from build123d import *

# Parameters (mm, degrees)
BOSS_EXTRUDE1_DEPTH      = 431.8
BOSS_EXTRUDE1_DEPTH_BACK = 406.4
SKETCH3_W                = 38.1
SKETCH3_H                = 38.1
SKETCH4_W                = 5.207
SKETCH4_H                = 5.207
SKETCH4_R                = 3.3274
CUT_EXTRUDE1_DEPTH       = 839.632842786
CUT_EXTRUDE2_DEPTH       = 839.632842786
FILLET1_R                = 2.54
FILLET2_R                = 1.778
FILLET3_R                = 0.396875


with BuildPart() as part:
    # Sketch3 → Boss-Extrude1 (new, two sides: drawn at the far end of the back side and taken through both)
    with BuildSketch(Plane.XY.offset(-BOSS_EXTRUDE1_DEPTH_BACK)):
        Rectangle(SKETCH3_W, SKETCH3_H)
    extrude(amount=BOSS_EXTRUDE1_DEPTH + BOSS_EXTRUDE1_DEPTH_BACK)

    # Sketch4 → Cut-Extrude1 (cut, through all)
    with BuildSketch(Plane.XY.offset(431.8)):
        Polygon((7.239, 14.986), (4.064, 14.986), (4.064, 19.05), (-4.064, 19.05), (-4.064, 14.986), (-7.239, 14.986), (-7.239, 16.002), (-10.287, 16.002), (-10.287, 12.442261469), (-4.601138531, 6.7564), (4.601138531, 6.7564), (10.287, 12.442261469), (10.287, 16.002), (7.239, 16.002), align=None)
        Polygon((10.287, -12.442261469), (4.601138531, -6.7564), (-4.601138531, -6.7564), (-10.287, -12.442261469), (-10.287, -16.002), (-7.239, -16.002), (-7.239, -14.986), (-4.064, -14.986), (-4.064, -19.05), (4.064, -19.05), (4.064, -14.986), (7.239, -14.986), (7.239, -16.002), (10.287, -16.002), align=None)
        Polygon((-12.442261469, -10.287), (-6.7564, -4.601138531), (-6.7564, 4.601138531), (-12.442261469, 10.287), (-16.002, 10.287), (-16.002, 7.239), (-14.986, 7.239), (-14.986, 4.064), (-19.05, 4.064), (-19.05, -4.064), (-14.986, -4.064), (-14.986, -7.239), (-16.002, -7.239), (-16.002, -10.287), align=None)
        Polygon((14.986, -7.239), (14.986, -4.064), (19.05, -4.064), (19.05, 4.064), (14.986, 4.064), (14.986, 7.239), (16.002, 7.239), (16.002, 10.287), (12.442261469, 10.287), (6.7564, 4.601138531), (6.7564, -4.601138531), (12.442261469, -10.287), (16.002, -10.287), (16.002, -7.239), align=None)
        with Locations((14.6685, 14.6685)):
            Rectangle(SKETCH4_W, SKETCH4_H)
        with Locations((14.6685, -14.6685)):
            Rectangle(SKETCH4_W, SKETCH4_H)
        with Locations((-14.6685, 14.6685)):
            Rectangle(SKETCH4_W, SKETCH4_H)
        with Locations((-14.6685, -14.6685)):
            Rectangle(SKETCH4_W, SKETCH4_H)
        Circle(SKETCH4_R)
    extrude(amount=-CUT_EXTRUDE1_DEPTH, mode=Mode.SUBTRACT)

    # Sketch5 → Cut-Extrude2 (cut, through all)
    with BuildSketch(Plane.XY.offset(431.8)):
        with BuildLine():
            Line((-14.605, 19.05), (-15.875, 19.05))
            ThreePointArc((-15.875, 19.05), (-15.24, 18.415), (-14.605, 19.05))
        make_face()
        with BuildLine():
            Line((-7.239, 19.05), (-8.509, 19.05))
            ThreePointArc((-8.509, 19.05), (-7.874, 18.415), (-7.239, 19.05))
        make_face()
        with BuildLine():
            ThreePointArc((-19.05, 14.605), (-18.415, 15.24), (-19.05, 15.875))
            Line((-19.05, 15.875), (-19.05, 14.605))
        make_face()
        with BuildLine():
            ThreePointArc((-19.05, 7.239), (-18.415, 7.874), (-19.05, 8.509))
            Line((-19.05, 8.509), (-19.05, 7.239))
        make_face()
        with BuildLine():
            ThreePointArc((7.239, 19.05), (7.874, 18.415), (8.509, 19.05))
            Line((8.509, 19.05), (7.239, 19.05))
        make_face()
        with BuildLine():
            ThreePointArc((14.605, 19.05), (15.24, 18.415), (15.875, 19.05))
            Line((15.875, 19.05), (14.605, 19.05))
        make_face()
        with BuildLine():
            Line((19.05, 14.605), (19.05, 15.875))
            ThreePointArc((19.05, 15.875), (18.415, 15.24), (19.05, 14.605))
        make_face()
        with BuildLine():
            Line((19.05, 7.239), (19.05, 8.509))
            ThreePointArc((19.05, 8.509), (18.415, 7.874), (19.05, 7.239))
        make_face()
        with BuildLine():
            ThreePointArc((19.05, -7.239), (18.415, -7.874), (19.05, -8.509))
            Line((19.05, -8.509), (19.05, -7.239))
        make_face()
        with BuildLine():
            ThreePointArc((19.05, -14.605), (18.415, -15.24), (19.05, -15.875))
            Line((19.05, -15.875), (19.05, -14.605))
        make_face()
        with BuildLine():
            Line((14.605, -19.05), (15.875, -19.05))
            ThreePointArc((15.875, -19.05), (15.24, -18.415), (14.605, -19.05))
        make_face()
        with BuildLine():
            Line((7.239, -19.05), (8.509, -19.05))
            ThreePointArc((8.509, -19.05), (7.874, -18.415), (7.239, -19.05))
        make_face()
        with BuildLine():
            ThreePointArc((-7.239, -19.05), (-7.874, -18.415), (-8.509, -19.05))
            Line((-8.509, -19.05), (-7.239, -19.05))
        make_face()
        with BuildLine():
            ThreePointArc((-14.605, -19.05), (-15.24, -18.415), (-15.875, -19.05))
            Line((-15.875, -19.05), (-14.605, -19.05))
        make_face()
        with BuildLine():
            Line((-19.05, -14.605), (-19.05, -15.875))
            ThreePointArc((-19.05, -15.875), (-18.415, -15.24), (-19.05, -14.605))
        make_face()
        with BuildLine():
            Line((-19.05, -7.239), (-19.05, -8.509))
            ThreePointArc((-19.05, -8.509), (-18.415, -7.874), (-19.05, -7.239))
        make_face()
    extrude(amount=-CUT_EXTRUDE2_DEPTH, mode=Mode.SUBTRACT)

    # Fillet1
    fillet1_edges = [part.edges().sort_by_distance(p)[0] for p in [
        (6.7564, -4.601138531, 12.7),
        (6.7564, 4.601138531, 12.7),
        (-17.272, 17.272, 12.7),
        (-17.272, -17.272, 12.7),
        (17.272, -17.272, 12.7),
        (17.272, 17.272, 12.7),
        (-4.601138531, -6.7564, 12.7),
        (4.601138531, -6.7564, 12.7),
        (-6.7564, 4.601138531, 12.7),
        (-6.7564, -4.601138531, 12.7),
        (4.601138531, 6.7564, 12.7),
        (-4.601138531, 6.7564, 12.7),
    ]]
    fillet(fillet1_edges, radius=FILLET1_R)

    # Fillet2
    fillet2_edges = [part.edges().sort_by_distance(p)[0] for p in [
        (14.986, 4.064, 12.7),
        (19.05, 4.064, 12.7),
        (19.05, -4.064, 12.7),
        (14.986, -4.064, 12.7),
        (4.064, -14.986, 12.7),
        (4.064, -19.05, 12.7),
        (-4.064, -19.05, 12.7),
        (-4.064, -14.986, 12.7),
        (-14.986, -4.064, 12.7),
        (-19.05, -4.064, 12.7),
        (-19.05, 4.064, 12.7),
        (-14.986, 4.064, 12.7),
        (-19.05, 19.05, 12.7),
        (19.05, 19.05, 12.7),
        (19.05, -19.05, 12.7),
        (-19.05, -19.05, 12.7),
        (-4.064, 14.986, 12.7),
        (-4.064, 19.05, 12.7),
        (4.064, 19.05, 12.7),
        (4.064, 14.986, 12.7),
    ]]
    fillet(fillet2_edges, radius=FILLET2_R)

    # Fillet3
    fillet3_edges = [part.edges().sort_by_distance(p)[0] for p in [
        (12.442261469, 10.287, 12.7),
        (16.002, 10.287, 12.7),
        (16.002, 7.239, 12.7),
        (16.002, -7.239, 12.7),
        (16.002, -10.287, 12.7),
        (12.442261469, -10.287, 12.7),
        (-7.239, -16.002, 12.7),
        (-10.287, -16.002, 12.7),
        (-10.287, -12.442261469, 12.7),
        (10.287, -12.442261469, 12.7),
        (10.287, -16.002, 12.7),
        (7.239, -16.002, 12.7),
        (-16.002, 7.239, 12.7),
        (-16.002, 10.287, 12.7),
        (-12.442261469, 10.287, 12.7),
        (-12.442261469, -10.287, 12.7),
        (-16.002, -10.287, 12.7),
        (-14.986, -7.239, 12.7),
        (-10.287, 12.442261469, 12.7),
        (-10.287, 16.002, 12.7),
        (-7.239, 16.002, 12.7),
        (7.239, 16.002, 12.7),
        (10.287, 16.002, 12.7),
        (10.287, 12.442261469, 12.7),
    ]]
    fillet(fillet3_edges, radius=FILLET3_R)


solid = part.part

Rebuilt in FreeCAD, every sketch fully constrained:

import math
import FreeCAD as App
import Part
import Sketcher
Q = App.Units.Quantity


def edges_at(feature, points):
    """Names of the edges that pass closest to the given points."""
    edges = feature.Shape.Edges
    near = lambda p: min(range(len(edges)), key=lambda i: edges[i].distToShape(Part.Vertex(*p))[0])
    return sorted({f"Edge{near(p) + 1}" for p in points})

doc = App.newDocument("Part")
body = doc.addObject("PartDesign::Body", "Body")

# Sketch on XY plane
sketch1 = body.newObject("Sketcher::SketchObject", "Sketch")
sketch1.AttachmentSupport = (doc.getObject("XY_Plane"), [""])
sketch1.MapMode = "FlatFace"
sketch1.addGeometry([
    Part.LineSegment(App.Vector(-19, 19, 0), App.Vector(-19, -19, 0)),
    Part.LineSegment(App.Vector(-19, -19, 0), App.Vector(19, -19, 0)),
    Part.LineSegment(App.Vector(19, -19, 0), App.Vector(19, 19, 0)),
    Part.LineSegment(App.Vector(19, 19, 0), App.Vector(-19, 19, 0)),
], False)
sketch1.addConstraint([
    Sketcher.Constraint("Coincident", 0, 2, 1, 1),
    Sketcher.Constraint("Coincident", 1, 2, 2, 1),
    Sketcher.Constraint("Coincident", 2, 2, 3, 1),
    Sketcher.Constraint("Coincident", 3, 2, 0, 1),
    Sketcher.Constraint("Vertical", 0),
    Sketcher.Constraint("Horizontal", 1),
    Sketcher.Constraint("Vertical", 2),
    Sketcher.Constraint("Horizontal", 3),
    Sketcher.Constraint("Symmetric", 0, 2, 2, 2, -1, 1),
    Sketcher.Constraint("Equal", 3, 0),
    Sketcher.Constraint("DistanceX", 1, 1, 1, 2, Q("1.5 in")),
])
pad1 = body.newObject("PartDesign::Pad", "Pad")
pad1.Profile = sketch1
pad1.Type = "TwoLengths"
pad1.Length = Q("17 in")
pad1.Length2 = Q("16 in")

# Sketch on XY plane
sketch2 = body.newObject("Sketcher::SketchObject", "Sketch001")
sketch2.AttachmentSupport = (doc.getObject("XY_Plane"), [""])
sketch2.MapMode = "FlatFace"
sketch2.AttachmentOffset = App.Placement(App.Vector(0, 0, 17 * 25.4), App.Rotation())
sketch2.addGeometry([
    Part.LineSegment(App.Vector(7.2, 15, 0), App.Vector(4.1, 15, 0)),  # 0
    Part.LineSegment(App.Vector(4.1, 15, 0), App.Vector(4.1, 19.1, 0)),  # 1
    Part.LineSegment(App.Vector(4.1, 19.1, 0), App.Vector(-4.1, 19.1, 0)),  # 2
    Part.LineSegment(App.Vector(-4.1, 19.1, 0), App.Vector(-4.1, 15, 0)),  # 3
    Part.LineSegment(App.Vector(-4.1, 15, 0), App.Vector(-7.2, 15, 0)),  # 4
    Part.LineSegment(App.Vector(-7.2, 15, 0), App.Vector(-7.2, 16, 0)),  # 5
    Part.LineSegment(App.Vector(-7.2, 16, 0), App.Vector(-10.3, 16, 0)),  # 6
    Part.LineSegment(App.Vector(-10.3, 16, 0), App.Vector(-10.3, 12.4, 0)),  # 7
    Part.LineSegment(App.Vector(-10.3, 12.4, 0), App.Vector(-4.6, 6.8, 0)),  # 8
    Part.LineSegment(App.Vector(-4.6, 6.8, 0), App.Vector(4.6, 6.8, 0)),  # 9
    Part.LineSegment(App.Vector(4.6, 6.8, 0), App.Vector(10.3, 12.4, 0)),  # 10
    Part.LineSegment(App.Vector(10.3, 12.4, 0), App.Vector(10.3, 16, 0)),  # 11
    Part.LineSegment(App.Vector(10.3, 16, 0), App.Vector(7.2, 16, 0)),  # 12
    Part.LineSegment(App.Vector(7.2, 16, 0), App.Vector(7.2, 15, 0)),  # 13
    Part.LineSegment(App.Vector(10.3, -12.4, 0), App.Vector(4.6, -6.8, 0)),  # 14
    Part.LineSegment(App.Vector(4.6, -6.8, 0), App.Vector(-4.6, -6.8, 0)),  # 15
    Part.LineSegment(App.Vector(-4.6, -6.8, 0), App.Vector(-10.3, -12.4, 0)),  # 16
    Part.LineSegment(App.Vector(-10.3, -12.4, 0), App.Vector(-10.3, -16, 0)),  # 17
    Part.LineSegment(App.Vector(-10.3, -16, 0), App.Vector(-7.2, -16, 0)),  # 18
    Part.LineSegment(App.Vector(-7.2, -16, 0), App.Vector(-7.2, -15, 0)),  # 19
    Part.LineSegment(App.Vector(-7.2, -15, 0), App.Vector(-4.1, -15, 0)),  # 20
    Part.LineSegment(App.Vector(-4.1, -15, 0), App.Vector(-4.1, -19.1, 0)),  # 21
    Part.LineSegment(App.Vector(-4.1, -19.1, 0), App.Vector(4.1, -19.1, 0)),  # 22
    Part.LineSegment(App.Vector(4.1, -19.1, 0), App.Vector(4.1, -15, 0)),  # 23
    Part.LineSegment(App.Vector(4.1, -15, 0), App.Vector(7.2, -15, 0)),  # 24
    Part.LineSegment(App.Vector(7.2, -15, 0), App.Vector(7.2, -16, 0)),  # 25
    Part.LineSegment(App.Vector(7.2, -16, 0), App.Vector(10.3, -16, 0)),  # 26
    Part.LineSegment(App.Vector(10.3, -16, 0), App.Vector(10.3, -12.4, 0)),  # 27
    Part.LineSegment(App.Vector(-12.4, -10.3, 0), App.Vector(-6.8, -4.6, 0)),  # 28
    Part.LineSegment(App.Vector(-6.8, -4.6, 0), App.Vector(-6.8, 4.6, 0)),  # 29
    Part.LineSegment(App.Vector(-6.8, 4.6, 0), App.Vector(-12.4, 10.3, 0)),  # 30
    Part.LineSegment(App.Vector(-12.4, 10.3, 0), App.Vector(-16, 10.3, 0)),  # 31
    Part.LineSegment(App.Vector(-16, 10.3, 0), App.Vector(-16, 7.2, 0)),  # 32
    Part.LineSegment(App.Vector(-16, 7.2, 0), App.Vector(-15, 7.2, 0)),  # 33
    Part.LineSegment(App.Vector(-15, 7.2, 0), App.Vector(-15, 4.1, 0)),  # 34
    Part.LineSegment(App.Vector(-15, 4.1, 0), App.Vector(-19.1, 4.1, 0)),  # 35
    Part.LineSegment(App.Vector(-19.1, 4.1, 0), App.Vector(-19.1, -4.1, 0)),  # 36
    Part.LineSegment(App.Vector(-19.1, -4.1, 0), App.Vector(-15, -4.1, 0)),  # 37
    Part.LineSegment(App.Vector(-15, -4.1, 0), App.Vector(-15, -7.2, 0)),  # 38
    Part.LineSegment(App.Vector(-15, -7.2, 0), App.Vector(-16, -7.2, 0)),  # 39
    Part.LineSegment(App.Vector(-16, -7.2, 0), App.Vector(-16, -10.3, 0)),  # 40
    Part.LineSegment(App.Vector(-16, -10.3, 0), App.Vector(-12.4, -10.3, 0)),  # 41
    Part.LineSegment(App.Vector(15, -7.2, 0), App.Vector(15, -4.1, 0)),  # 42
    Part.LineSegment(App.Vector(15, -4.1, 0), App.Vector(19.1, -4.1, 0)),  # 43
    Part.LineSegment(App.Vector(19.1, -4.1, 0), App.Vector(19.1, 4.1, 0)),  # 44
    Part.LineSegment(App.Vector(19.1, 4.1, 0), App.Vector(15, 4.1, 0)),  # 45
    Part.LineSegment(App.Vector(15, 4.1, 0), App.Vector(15, 7.2, 0)),  # 46
    Part.LineSegment(App.Vector(15, 7.2, 0), App.Vector(16, 7.2, 0)),  # 47
    Part.LineSegment(App.Vector(16, 7.2, 0), App.Vector(16, 10.3, 0)),  # 48
    Part.LineSegment(App.Vector(16, 10.3, 0), App.Vector(12.4, 10.3, 0)),  # 49
    Part.LineSegment(App.Vector(12.4, 10.3, 0), App.Vector(6.8, 4.6, 0)),  # 50
    Part.LineSegment(App.Vector(6.8, 4.6, 0), App.Vector(6.8, -4.6, 0)),  # 51
    Part.LineSegment(App.Vector(6.8, -4.6, 0), App.Vector(12.4, -10.3, 0)),  # 52
    Part.LineSegment(App.Vector(12.4, -10.3, 0), App.Vector(16, -10.3, 0)),  # 53
    Part.LineSegment(App.Vector(16, -10.3, 0), App.Vector(16, -7.2, 0)),  # 54
    Part.LineSegment(App.Vector(16, -7.2, 0), App.Vector(15, -7.2, 0)),  # 55
    Part.LineSegment(App.Vector(12.1, 17.3, 0), App.Vector(12.1, 12.1, 0)),  # 56
    Part.LineSegment(App.Vector(12.1, 12.1, 0), App.Vector(17.3, 12.1, 0)),  # 57
    Part.LineSegment(App.Vector(17.3, 12.1, 0), App.Vector(17.3, 17.3, 0)),  # 58
    Part.LineSegment(App.Vector(17.3, 17.3, 0), App.Vector(12.1, 17.3, 0)),  # 59
    Part.LineSegment(App.Vector(12.1, -12.1, 0), App.Vector(12.1, -17.3, 0)),  # 60
    Part.LineSegment(App.Vector(12.1, -17.3, 0), App.Vector(17.3, -17.3, 0)),  # 61
    Part.LineSegment(App.Vector(17.3, -17.3, 0), App.Vector(17.3, -12.1, 0)),  # 62
    Part.LineSegment(App.Vector(17.3, -12.1, 0), App.Vector(12.1, -12.1, 0)),  # 63
    Part.LineSegment(App.Vector(-17.3, 17.3, 0), App.Vector(-17.3, 12.1, 0)),  # 64
    Part.LineSegment(App.Vector(-17.3, 12.1, 0), App.Vector(-12.1, 12.1, 0)),  # 65
    Part.LineSegment(App.Vector(-12.1, 12.1, 0), App.Vector(-12.1, 17.3, 0)),  # 66
    Part.LineSegment(App.Vector(-12.1, 17.3, 0), App.Vector(-17.3, 17.3, 0)),  # 67
    Part.LineSegment(App.Vector(-17.3, -12.1, 0), App.Vector(-17.3, -17.3, 0)),  # 68
    Part.LineSegment(App.Vector(-17.3, -17.3, 0), App.Vector(-12.1, -17.3, 0)),  # 69
    Part.LineSegment(App.Vector(-12.1, -17.3, 0), App.Vector(-12.1, -12.1, 0)),  # 70
    Part.LineSegment(App.Vector(-12.1, -12.1, 0), App.Vector(-17.3, -12.1, 0)),  # 71
    Part.Circle(App.Vector(0, 0, 0), App.Vector(0, 0, 1), 3.3),  # 72
], False)
sketch2.addConstraint([
    Sketcher.Constraint("Coincident", 0, 2, 1, 1),
    Sketcher.Constraint("Coincident", 1, 2, 2, 1),
    Sketcher.Constraint("Coincident", 2, 2, 3, 1),
    Sketcher.Constraint("Coincident", 3, 2, 4, 1),
    Sketcher.Constraint("Coincident", 4, 2, 5, 1),
    Sketcher.Constraint("Coincident", 5, 2, 6, 1),
    Sketcher.Constraint("Coincident", 6, 2, 7, 1),
    Sketcher.Constraint("Coincident", 7, 2, 8, 1),
    Sketcher.Constraint("Coincident", 8, 2, 9, 1),
    Sketcher.Constraint("Coincident", 9, 2, 10, 1),
    Sketcher.Constraint("Coincident", 10, 2, 11, 1),
    Sketcher.Constraint("Coincident", 11, 2, 12, 1),
    Sketcher.Constraint("Coincident", 12, 2, 13, 1),
    Sketcher.Constraint("Coincident", 13, 2, 0, 1),
    Sketcher.Constraint("Coincident", 14, 2, 15, 1),
    Sketcher.Constraint("Coincident", 15, 2, 16, 1),
    Sketcher.Constraint("Coincident", 16, 2, 17, 1),
    Sketcher.Constraint("Coincident", 17, 2, 18, 1),
    Sketcher.Constraint("Coincident", 18, 2, 19, 1),
    Sketcher.Constraint("Coincident", 19, 2, 20, 1),
    Sketcher.Constraint("Coincident", 20, 2, 21, 1),
    Sketcher.Constraint("Coincident", 21, 2, 22, 1),
    Sketcher.Constraint("Coincident", 22, 2, 23, 1),
    Sketcher.Constraint("Coincident", 23, 2, 24, 1),
    Sketcher.Constraint("Coincident", 24, 2, 25, 1),
    Sketcher.Constraint("Coincident", 25, 2, 26, 1),
    Sketcher.Constraint("Coincident", 26, 2, 27, 1),
    Sketcher.Constraint("Coincident", 27, 2, 14, 1),
    Sketcher.Constraint("Coincident", 28, 2, 29, 1),
    Sketcher.Constraint("Coincident", 29, 2, 30, 1),
    Sketcher.Constraint("Coincident", 30, 2, 31, 1),
    Sketcher.Constraint("Coincident", 31, 2, 32, 1),
    Sketcher.Constraint("Coincident", 32, 2, 33, 1),
    Sketcher.Constraint("Coincident", 33, 2, 34, 1),
    Sketcher.Constraint("Coincident", 34, 2, 35, 1),
    Sketcher.Constraint("Coincident", 35, 2, 36, 1),
    Sketcher.Constraint("Coincident", 36, 2, 37, 1),
    Sketcher.Constraint("Coincident", 37, 2, 38, 1),
    Sketcher.Constraint("Coincident", 38, 2, 39, 1),
    Sketcher.Constraint("Coincident", 39, 2, 40, 1),
    Sketcher.Constraint("Coincident", 40, 2, 41, 1),
    Sketcher.Constraint("Coincident", 41, 2, 28, 1),
    Sketcher.Constraint("Coincident", 42, 2, 43, 1),
    Sketcher.Constraint("Coincident", 43, 2, 44, 1),
    Sketcher.Constraint("Coincident", 44, 2, 45, 1),
    Sketcher.Constraint("Coincident", 45, 2, 46, 1),
    Sketcher.Constraint("Coincident", 46, 2, 47, 1),
    Sketcher.Constraint("Coincident", 47, 2, 48, 1),
    Sketcher.Constraint("Coincident", 48, 2, 49, 1),
    Sketcher.Constraint("Coincident", 49, 2, 50, 1),
    Sketcher.Constraint("Coincident", 50, 2, 51, 1),
    Sketcher.Constraint("Coincident", 51, 2, 52, 1),
    Sketcher.Constraint("Coincident", 52, 2, 53, 1),
    Sketcher.Constraint("Coincident", 53, 2, 54, 1),
    Sketcher.Constraint("Coincident", 54, 2, 55, 1),
    Sketcher.Constraint("Coincident", 55, 2, 42, 1),
    Sketcher.Constraint("Coincident", 56, 2, 57, 1),
    Sketcher.Constraint("Coincident", 57, 2, 58, 1),
    Sketcher.Constraint("Coincident", 58, 2, 59, 1),
    Sketcher.Constraint("Coincident", 59, 2, 56, 1),
    Sketcher.Constraint("Coincident", 60, 2, 61, 1),
    Sketcher.Constraint("Coincident", 61, 2, 62, 1),
    Sketcher.Constraint("Coincident", 62, 2, 63, 1),
    Sketcher.Constraint("Coincident", 63, 2, 60, 1),
    Sketcher.Constraint("Coincident", 64, 2, 65, 1),
    Sketcher.Constraint("Coincident", 65, 2, 66, 1),
    Sketcher.Constraint("Coincident", 66, 2, 67, 1),
    Sketcher.Constraint("Coincident", 67, 2, 64, 1),
    Sketcher.Constraint("Coincident", 68, 2, 69, 1),
    Sketcher.Constraint("Coincident", 69, 2, 70, 1),
    Sketcher.Constraint("Coincident", 70, 2, 71, 1),
    Sketcher.Constraint("Coincident", 71, 2, 68, 1),
    Sketcher.Constraint("Horizontal", 0),
    Sketcher.Constraint("Vertical", 1),
    Sketcher.Constraint("Horizontal", 2),
    Sketcher.Constraint("Vertical", 3),
    Sketcher.Constraint("Horizontal", 4),
    Sketcher.Constraint("Vertical", 5),
    Sketcher.Constraint("Horizontal", 6),
    Sketcher.Constraint("Vertical", 7),
    Sketcher.Constraint("Horizontal", 9),
    Sketcher.Constraint("Vertical", 11),
    Sketcher.Constraint("Horizontal", 12),
    Sketcher.Constraint("Vertical", 13),
    Sketcher.Constraint("Horizontal", 15),
    Sketcher.Constraint("Vertical", 17),
    Sketcher.Constraint("Horizontal", 18),
    Sketcher.Constraint("Vertical", 19),
    Sketcher.Constraint("Horizontal", 20),
    Sketcher.Constraint("Vertical", 21),
    Sketcher.Constraint("Horizontal", 22),
    Sketcher.Constraint("Vertical", 23),
    Sketcher.Constraint("Horizontal", 24),
    Sketcher.Constraint("Vertical", 25),
    Sketcher.Constraint("Horizontal", 26),
    Sketcher.Constraint("Vertical", 27),
    Sketcher.Constraint("Vertical", 29),
    Sketcher.Constraint("Horizontal", 31),
    Sketcher.Constraint("Vertical", 32),
    Sketcher.Constraint("Horizontal", 33),
    Sketcher.Constraint("Vertical", 34),
    Sketcher.Constraint("Horizontal", 35),
    Sketcher.Constraint("Vertical", 36),
    Sketcher.Constraint("Horizontal", 37),
    Sketcher.Constraint("Vertical", 38),
    Sketcher.Constraint("Horizontal", 39),
    Sketcher.Constraint("Vertical", 40),
    Sketcher.Constraint("Horizontal", 41),
    Sketcher.Constraint("Vertical", 42),
    Sketcher.Constraint("Horizontal", 43),
    Sketcher.Constraint("Vertical", 44),
    Sketcher.Constraint("Horizontal", 45),
    Sketcher.Constraint("Vertical", 46),
    Sketcher.Constraint("Horizontal", 47),
    Sketcher.Constraint("Vertical", 48),
    Sketcher.Constraint("Horizontal", 49),
    Sketcher.Constraint("Vertical", 51),
    Sketcher.Constraint("Horizontal", 53),
    Sketcher.Constraint("Vertical", 54),
    Sketcher.Constraint("Horizontal", 55),
    Sketcher.Constraint("Vertical", 56),
    Sketcher.Constraint("Horizontal", 57),
    Sketcher.Constraint("Vertical", 58),
    Sketcher.Constraint("Horizontal", 59),
    Sketcher.Constraint("Vertical", 60),
    Sketcher.Constraint("Horizontal", 61),
    Sketcher.Constraint("Vertical", 62),
    Sketcher.Constraint("Horizontal", 63),
    Sketcher.Constraint("Vertical", 64),
    Sketcher.Constraint("Horizontal", 65),
    Sketcher.Constraint("Vertical", 66),
    Sketcher.Constraint("Horizontal", 67),
    Sketcher.Constraint("Vertical", 68),
    Sketcher.Constraint("Horizontal", 69),
    Sketcher.Constraint("Vertical", 70),
    Sketcher.Constraint("Horizontal", 71),
    Sketcher.Constraint("Coincident", 72, 3, -1, 1),
    Sketcher.Constraint("Symmetric", 8, 2, 14, 2, -1, 1),
    Sketcher.Constraint("Symmetric", 10, 2, 16, 2, -1, 1),
    Sketcher.Constraint("Symmetric", 12, 2, 18, 2, -1, 1),
    Sketcher.Constraint("Symmetric", 0, 2, 20, 2, -1, 1),
    Sketcher.Constraint("Symmetric", 2, 2, 22, 2, -1, 1),
    Sketcher.Constraint("Symmetric", 4, 2, 24, 2, -1, 1),
    Sketcher.Constraint("Symmetric", 6, 2, 26, 2, -1, 1),
    Sketcher.Constraint("Symmetric", 34, 2, 42, 2, -1, 1),
    Sketcher.Constraint("Symmetric", 36, 2, 44, 2, -1, 1),
    Sketcher.Constraint("Symmetric", 38, 2, 46, 2, -1, 1),
    Sketcher.Constraint("Symmetric", 40, 2, 48, 2, -1, 1),
    Sketcher.Constraint("Symmetric", 28, 2, 50, 2, -1, 1),
    Sketcher.Constraint("Symmetric", 30, 2, 52, 2, -1, 1),
    Sketcher.Constraint("Symmetric", 32, 2, 54, 2, -1, 1),
    Sketcher.Constraint("Symmetric", 62, 2, 64, 2, -1, 1),
    Sketcher.Constraint("Symmetric", 60, 2, 66, 2, -1, 1),
    Sketcher.Constraint("Symmetric", 58, 2, 68, 2, -1, 1),
    Sketcher.Constraint("Symmetric", 56, 2, 70, 2, -1, 1),
    Sketcher.Constraint("Symmetric", 0, 2, 3, 2, -2),
    Sketcher.Constraint("Symmetric", 7, 2, 10, 2, -2),
    Sketcher.Constraint("Symmetric", 5, 2, 12, 2, -2),
    Sketcher.Constraint("Symmetric", 37, 2, 42, 2, -2),
    Sketcher.Constraint("Symmetric", 32, 2, 47, 2, -2),
    Sketcher.Constraint("Symmetric", 30, 2, 49, 2, -2),
    Sketcher.Constraint("Symmetric", 57, 2, 64, 2, -2),
    Sketcher.Constraint("Symmetric", 59, 2, 66, 2, -2),
    Sketcher.Constraint("Perpendicular", 8, 10),
    Sketcher.Constraint("Perpendicular", 10, 14),
    Sketcher.Constraint("Perpendicular", 14, 16),
    Sketcher.Constraint("Parallel", 16, 28),
    Sketcher.Constraint("Perpendicular", 28, 30),
    Sketcher.Constraint("Perpendicular", 30, 50),
    Sketcher.Constraint("Perpendicular", 50, 52),
    Sketcher.Constraint("Horizontal", 29, 2, 50, 2),
    Sketcher.Constraint("Equal", 45, 1),
    Sketcher.Constraint("Equal", 55, 5),
    Sketcher.Constraint("Equal", 53, 7),
    Sketcher.Constraint("Equal", 15, 29),
    Sketcher.Constraint("Equal", 26, 32),
    Sketcher.Constraint("Equal", 24, 34),
    Sketcher.Constraint("Equal", 22, 36),
    Sketcher.Constraint("Equal", 71, 56),
    Sketcher.Constraint("Diameter", 72, Q("0.262 in")),
    Sketcher.Constraint("DistanceX", 2, 2, 2, 1, Q("0.32 in")),
    Sketcher.Constraint("DistanceX", 6, 2, 6, 1, Q("0.12 in")),
    Sketcher.Constraint("DistanceX", 33, 1, 33, 2, Q("0.04 in")),
    Sketcher.Constraint("DistanceX", 35, 2, 35, 1, Q("0.16 in")),
    Sketcher.Constraint("DistanceX", 0, 2, 0, 1, Q("0.125 in")),
    Sketcher.Constraint("DistanceX", 57, 1, 57, 2, Q("0.205 in")),
    Sketcher.Constraint("DistanceY", -1, 1, 0, 2, Q("0.59 in")),
    Sketcher.Constraint("DistanceX", 31, 2, -1, 1, Q("0.63 in")),
    Sketcher.Constraint("DistanceX", -1, 1, 57, 2, Q("0.68 in")),
    Sketcher.Constraint("DistanceY", -1, 1, 58, 2, Q("0.68 in")),
    Sketcher.Constraint("DistanceY", -1, 1, 8, 2, Q("0.266 in")),
    Sketcher.Constraint("DistanceX", 31, 2, 31, 1, Q("3.559739 mm")),
])
pocket1 = body.newObject("PartDesign::Pocket", "Pocket")
pocket1.Profile = sketch2
pocket1.Type = "ThroughAll"

# Sketch on XY plane
sketch3 = body.newObject("Sketcher::SketchObject", "Sketch002")
sketch3.AttachmentSupport = (doc.getObject("XY_Plane"), [""])
sketch3.MapMode = "FlatFace"
sketch3.AttachmentOffset = App.Placement(App.Vector(0, 0, 17 * 25.4), App.Rotation())
sketch3.addGeometry([
    Part.LineSegment(App.Vector(-14.6, 19.1, 0), App.Vector(-15.9, 19.1, 0)),  # 0
    Part.ArcOfCircle(Part.Circle(App.Vector(-15.2, 19.1, 0), App.Vector(0, 0, 1), 0.6), math.radians(180), math.radians(360)),  # 1
    Part.LineSegment(App.Vector(-7.2, 19.1, 0), App.Vector(-8.5, 19.1, 0)),  # 2
    Part.ArcOfCircle(Part.Circle(App.Vector(-7.9, 19.1, 0), App.Vector(0, 0, 1), 0.6), math.radians(180), math.radians(360)),  # 3
    Part.ArcOfCircle(Part.Circle(App.Vector(-19.1, 15.2, 0), App.Vector(0, 0, 1), 0.6), math.radians(-90), math.radians(90)),  # 4
    Part.LineSegment(App.Vector(-19.1, 15.9, 0), App.Vector(-19.1, 14.6, 0)),  # 5
    Part.ArcOfCircle(Part.Circle(App.Vector(-19.1, 7.9, 0), App.Vector(0, 0, 1), 0.6), math.radians(-90), math.radians(90)),  # 6
    Part.LineSegment(App.Vector(-19.1, 8.5, 0), App.Vector(-19.1, 7.2, 0)),  # 7
    Part.ArcOfCircle(Part.Circle(App.Vector(7.9, 19.1, 0), App.Vector(0, 0, 1), 0.6), math.radians(180), math.radians(360)),  # 8
    Part.LineSegment(App.Vector(8.5, 19.1, 0), App.Vector(7.2, 19.1, 0)),  # 9
    Part.ArcOfCircle(Part.Circle(App.Vector(15.2, 19.1, 0), App.Vector(0, 0, 1), 0.6), math.radians(180), math.radians(360)),  # 10
    Part.LineSegment(App.Vector(15.9, 19.1, 0), App.Vector(14.6, 19.1, 0)),  # 11
    Part.LineSegment(App.Vector(19.1, 14.6, 0), App.Vector(19.1, 15.9, 0)),  # 12
    Part.ArcOfCircle(Part.Circle(App.Vector(19.1, 15.2, 0), App.Vector(0, 0, 1), 0.6), math.radians(90), math.radians(270)),  # 13
    Part.LineSegment(App.Vector(19.1, 7.2, 0), App.Vector(19.1, 8.5, 0)),  # 14
    Part.ArcOfCircle(Part.Circle(App.Vector(19.1, 7.9, 0), App.Vector(0, 0, 1), 0.6), math.radians(90), math.radians(270)),  # 15
    Part.ArcOfCircle(Part.Circle(App.Vector(19.1, -7.9, 0), App.Vector(0, 0, 1), 0.6), math.radians(90), math.radians(270)),  # 16
    Part.LineSegment(App.Vector(19.1, -8.5, 0), App.Vector(19.1, -7.2, 0)),  # 17
    Part.ArcOfCircle(Part.Circle(App.Vector(19.1, -15.2, 0), App.Vector(0, 0, 1), 0.6), math.radians(90), math.radians(270)),  # 18
    Part.LineSegment(App.Vector(19.1, -15.9, 0), App.Vector(19.1, -14.6, 0)),  # 19
    Part.LineSegment(App.Vector(14.6, -19.1, 0), App.Vector(15.9, -19.1, 0)),  # 20
    Part.ArcOfCircle(Part.Circle(App.Vector(15.2, -19.1, 0), App.Vector(0, 0, 1), 0.6), math.radians(0), math.radians(180)),  # 21
    Part.LineSegment(App.Vector(7.2, -19.1, 0), App.Vector(8.5, -19.1, 0)),  # 22
    Part.ArcOfCircle(Part.Circle(App.Vector(7.9, -19.1, 0), App.Vector(0, 0, 1), 0.6), math.radians(0), math.radians(180)),  # 23
    Part.ArcOfCircle(Part.Circle(App.Vector(-7.9, -19.1, 0), App.Vector(0, 0, 1), 0.6), math.radians(0), math.radians(180)),  # 24
    Part.LineSegment(App.Vector(-8.5, -19.1, 0), App.Vector(-7.2, -19.1, 0)),  # 25
    Part.ArcOfCircle(Part.Circle(App.Vector(-15.2, -19.1, 0), App.Vector(0, 0, 1), 0.6), math.radians(0), math.radians(180)),  # 26
    Part.LineSegment(App.Vector(-15.9, -19.1, 0), App.Vector(-14.6, -19.1, 0)),  # 27
    Part.LineSegment(App.Vector(-19.1, -14.6, 0), App.Vector(-19.1, -15.9, 0)),  # 28
    Part.ArcOfCircle(Part.Circle(App.Vector(-19.1, -15.2, 0), App.Vector(0, 0, 1), 0.6), math.radians(-90), math.radians(90)),  # 29
    Part.LineSegment(App.Vector(-19.1, -7.2, 0), App.Vector(-19.1, -8.5, 0)),  # 30
    Part.ArcOfCircle(Part.Circle(App.Vector(-19.1, -7.9, 0), App.Vector(0, 0, 1), 0.6), math.radians(-90), math.radians(90)),  # 31
], False)
sketch3.addConstraint([
    Sketcher.Constraint("Coincident", 0, 1, 1, 2),
    Sketcher.Constraint("Coincident", 1, 1, 0, 2),
    Sketcher.Constraint("Coincident", 2, 1, 3, 2),
    Sketcher.Constraint("Coincident", 3, 1, 2, 2),
    Sketcher.Constraint("Coincident", 4, 1, 5, 2),
    Sketcher.Constraint("Coincident", 5, 1, 4, 2),
    Sketcher.Constraint("Coincident", 6, 1, 7, 2),
    Sketcher.Constraint("Coincident", 7, 1, 6, 2),
    Sketcher.Constraint("Coincident", 8, 1, 9, 2),
    Sketcher.Constraint("Coincident", 9, 1, 8, 2),
    Sketcher.Constraint("Coincident", 10, 1, 11, 2),
    Sketcher.Constraint("Coincident", 11, 1, 10, 2),
    Sketcher.Constraint("Coincident", 12, 1, 13, 2),
    Sketcher.Constraint("Coincident", 13, 1, 12, 2),
    Sketcher.Constraint("Coincident", 14, 1, 15, 2),
    Sketcher.Constraint("Coincident", 15, 1, 14, 2),
    Sketcher.Constraint("Coincident", 16, 1, 17, 2),
    Sketcher.Constraint("Coincident", 17, 1, 16, 2),
    Sketcher.Constraint("Coincident", 18, 1, 19, 2),
    Sketcher.Constraint("Coincident", 19, 1, 18, 2),
    Sketcher.Constraint("Coincident", 20, 1, 21, 2),
    Sketcher.Constraint("Coincident", 21, 1, 20, 2),
    Sketcher.Constraint("Coincident", 22, 1, 23, 2),
    Sketcher.Constraint("Coincident", 23, 1, 22, 2),
    Sketcher.Constraint("Coincident", 24, 1, 25, 2),
    Sketcher.Constraint("Coincident", 25, 1, 24, 2),
    Sketcher.Constraint("Coincident", 26, 1, 27, 2),
    Sketcher.Constraint("Coincident", 27, 1, 26, 2),
    Sketcher.Constraint("Coincident", 28, 1, 29, 2),
    Sketcher.Constraint("Coincident", 29, 1, 28, 2),
    Sketcher.Constraint("Coincident", 30, 1, 31, 2),
    Sketcher.Constraint("Coincident", 31, 1, 30, 2),
    Sketcher.Constraint("Horizontal", 0),
    Sketcher.Constraint("Horizontal", 2),
    Sketcher.Constraint("Vertical", 5),
    Sketcher.Constraint("Vertical", 7),
    Sketcher.Constraint("Horizontal", 9),
    Sketcher.Constraint("Horizontal", 11),
    Sketcher.Constraint("Vertical", 12),
    Sketcher.Constraint("Vertical", 14),
    Sketcher.Constraint("Vertical", 17),
    Sketcher.Constraint("Vertical", 19),
    Sketcher.Constraint("Horizontal", 20),
    Sketcher.Constraint("Horizontal", 22),
    Sketcher.Constraint("Horizontal", 25),
    Sketcher.Constraint("Horizontal", 27),
    Sketcher.Constraint("Vertical", 28),
    Sketcher.Constraint("Vertical", 30),
    Sketcher.Constraint("Equal", 1, 3),
    Sketcher.Constraint("Equal", 3, 4),
    Sketcher.Constraint("Equal", 4, 6),
    Sketcher.Constraint("Equal", 6, 8),
    Sketcher.Constraint("Equal", 8, 10),
    Sketcher.Constraint("Equal", 10, 13),
    Sketcher.Constraint("Equal", 13, 15),
    Sketcher.Constraint("Equal", 15, 16),
    Sketcher.Constraint("Equal", 16, 18),
    Sketcher.Constraint("Equal", 18, 21),
    Sketcher.Constraint("Equal", 21, 23),
    Sketcher.Constraint("Equal", 23, 24),
    Sketcher.Constraint("Equal", 24, 26),
    Sketcher.Constraint("Equal", 26, 29),
    Sketcher.Constraint("Equal", 29, 31),
    Sketcher.Constraint("Symmetric", 6, 3, 16, 3, -1, 1),
    Sketcher.Constraint("Symmetric", 4, 3, 18, 3, -1, 1),
    Sketcher.Constraint("Symmetric", 1, 3, 21, 3, -1, 1),
    Sketcher.Constraint("Symmetric", 3, 3, 23, 3, -1, 1),
    Sketcher.Constraint("Symmetric", 8, 3, 24, 3, -1, 1),
    Sketcher.Constraint("Symmetric", 10, 3, 26, 3, -1, 1),
    Sketcher.Constraint("Symmetric", 13, 3, 29, 3, -1, 1),
    Sketcher.Constraint("Symmetric", 15, 3, 31, 3, -1, 1),
    Sketcher.Constraint("Symmetric", 3, 3, 8, 3, -2),
    Sketcher.Constraint("Symmetric", 1, 3, 10, 3, -2),
    Sketcher.Constraint("Symmetric", 4, 3, 13, 3, -2),
    Sketcher.Constraint("Symmetric", 6, 3, 15, 3, -2),
    Sketcher.Constraint("Horizontal", 1, 3, 3, 3),
    Sketcher.Constraint("Horizontal", 10, 3, 0, 1),
    Sketcher.Constraint("Horizontal", 1, 1, 2, 1),
    Sketcher.Constraint("Horizontal", 3, 1, 8, 1),
    Sketcher.Constraint("Horizontal", 9, 1, 10, 1),
    Sketcher.Constraint("Horizontal", 26, 3, 20, 1),
    Sketcher.Constraint("Horizontal", 21, 1, 22, 1),
    Sketcher.Constraint("Horizontal", 23, 1, 24, 1),
    Sketcher.Constraint("Horizontal", 25, 1, 26, 1),
    Sketcher.Constraint("Vertical", 4, 3, 6, 3),
    Sketcher.Constraint("Vertical", 31, 3, 4, 1),
    Sketcher.Constraint("Vertical", 5, 1, 6, 1),
    Sketcher.Constraint("Vertical", 18, 3, 12, 1),
    Sketcher.Constraint("Vertical", 13, 1, 14, 1),
    Sketcher.Constraint("Vertical", 15, 1, 16, 1),
    Sketcher.Constraint("Vertical", 17, 1, 18, 1),
    Sketcher.Constraint("Vertical", 7, 1, 28, 1),
    Sketcher.Constraint("Vertical", 29, 1, 30, 1),
    Sketcher.Constraint("Radius", 1, Q("0.025 in")),
    Sketcher.Constraint("DistanceX", 1, 3, -1, 1, Q("0.6 in")),
    Sketcher.Constraint("DistanceY", -1, 1, 4, 3, Q("0.6 in")),
    Sketcher.Constraint("DistanceX", 4, 3, 13, 3, Q("1.5 in")),
    Sketcher.Constraint("DistanceY", 21, 3, 10, 3, Q("1.5 in")),
    Sketcher.Constraint("DistanceX", 3, 3, -1, 1, Q("0.31 in")),
    Sketcher.Constraint("DistanceY", -1, 1, 6, 3, Q("0.31 in")),
])
pocket2 = body.newObject("PartDesign::Pocket", "Pocket001")
pocket2.Profile = sketch3
pocket2.Type = "ThroughAll"
doc.recompute()

fillet = body.newObject("PartDesign::Fillet", "Fillet")
fillet.Base = (pocket2, edges_at(pocket2, [
    (6.756, -4.601, 12.7),
    (6.756, 4.601, 12.7),
    (-17.272, 17.272, 12.7),
    (-17.272, -17.272, 12.7),
    (17.272, -17.272, 12.7),
    (17.272, 17.272, 12.7),
    (-4.601, -6.756, 12.7),
    (4.601, -6.756, 12.7),
    (-6.756, 4.601, 12.7),
    (-6.756, -4.601, 12.7),
    (4.601, 6.756, 12.7),
    (-4.601, 6.756, 12.7),
]))
fillet.Radius = Q("0.1 in")
doc.recompute()

fillet2 = body.newObject("PartDesign::Fillet", "Fillet001")
fillet2.Base = (fillet, edges_at(fillet, [
    (14.986, 4.064, 12.7),
    (19.05, 4.064, 12.7),
    (19.05, -4.064, 12.7),
    (14.986, -4.064, 12.7),
    (4.064, -14.986, 12.7),
    (4.064, -19.05, 12.7),
    (-4.064, -19.05, 12.7),
    (-4.064, -14.986, 12.7),
    (-14.986, -4.064, 12.7),
    (-19.05, -4.064, 12.7),
    (-19.05, 4.064, 12.7),
    (-14.986, 4.064, 12.7),
    (-19.05, 19.05, 12.7),
    (19.05, 19.05, 12.7),
    (19.05, -19.05, 12.7),
    (-19.05, -19.05, 12.7),
    (-4.064, 14.986, 12.7),
    (-4.064, 19.05, 12.7),
    (4.064, 19.05, 12.7),
    (4.064, 14.986, 12.7),
]))
fillet2.Radius = Q("0.07 in")
doc.recompute()

fillet3 = body.newObject("PartDesign::Fillet", "Fillet002")
fillet3.Base = (fillet2, edges_at(fillet2, [
    (12.442, 10.287, 12.7),
    (16.002, 10.287, 12.7),
    (16.002, 7.239, 12.7),
    (16.002, -7.239, 12.7),
    (16.002, -10.287, 12.7),
    (12.442, -10.287, 12.7),
    (-7.239, -16.002, 12.7),
    (-10.287, -16.002, 12.7),
    (-10.287, -12.442, 12.7),
    (10.287, -12.442, 12.7),
    (10.287, -16.002, 12.7),
    (7.239, -16.002, 12.7),
    (-16.002, 7.239, 12.7),
    (-16.002, 10.287, 12.7),
    (-12.442, 10.287, 12.7),
    (-12.442, -10.287, 12.7),
    (-16.002, -10.287, 12.7),
    (-14.986, -7.239, 12.7),
    (-10.287, 12.442, 12.7),
    (-10.287, 16.002, 12.7),
    (-7.239, 16.002, 12.7),
    (7.239, 16.002, 12.7),
    (10.287, 16.002, 12.7),
    (10.287, 12.442, 12.7),
]))
fillet3.Radius = Q("0.015625 in")

doc.recompute()
